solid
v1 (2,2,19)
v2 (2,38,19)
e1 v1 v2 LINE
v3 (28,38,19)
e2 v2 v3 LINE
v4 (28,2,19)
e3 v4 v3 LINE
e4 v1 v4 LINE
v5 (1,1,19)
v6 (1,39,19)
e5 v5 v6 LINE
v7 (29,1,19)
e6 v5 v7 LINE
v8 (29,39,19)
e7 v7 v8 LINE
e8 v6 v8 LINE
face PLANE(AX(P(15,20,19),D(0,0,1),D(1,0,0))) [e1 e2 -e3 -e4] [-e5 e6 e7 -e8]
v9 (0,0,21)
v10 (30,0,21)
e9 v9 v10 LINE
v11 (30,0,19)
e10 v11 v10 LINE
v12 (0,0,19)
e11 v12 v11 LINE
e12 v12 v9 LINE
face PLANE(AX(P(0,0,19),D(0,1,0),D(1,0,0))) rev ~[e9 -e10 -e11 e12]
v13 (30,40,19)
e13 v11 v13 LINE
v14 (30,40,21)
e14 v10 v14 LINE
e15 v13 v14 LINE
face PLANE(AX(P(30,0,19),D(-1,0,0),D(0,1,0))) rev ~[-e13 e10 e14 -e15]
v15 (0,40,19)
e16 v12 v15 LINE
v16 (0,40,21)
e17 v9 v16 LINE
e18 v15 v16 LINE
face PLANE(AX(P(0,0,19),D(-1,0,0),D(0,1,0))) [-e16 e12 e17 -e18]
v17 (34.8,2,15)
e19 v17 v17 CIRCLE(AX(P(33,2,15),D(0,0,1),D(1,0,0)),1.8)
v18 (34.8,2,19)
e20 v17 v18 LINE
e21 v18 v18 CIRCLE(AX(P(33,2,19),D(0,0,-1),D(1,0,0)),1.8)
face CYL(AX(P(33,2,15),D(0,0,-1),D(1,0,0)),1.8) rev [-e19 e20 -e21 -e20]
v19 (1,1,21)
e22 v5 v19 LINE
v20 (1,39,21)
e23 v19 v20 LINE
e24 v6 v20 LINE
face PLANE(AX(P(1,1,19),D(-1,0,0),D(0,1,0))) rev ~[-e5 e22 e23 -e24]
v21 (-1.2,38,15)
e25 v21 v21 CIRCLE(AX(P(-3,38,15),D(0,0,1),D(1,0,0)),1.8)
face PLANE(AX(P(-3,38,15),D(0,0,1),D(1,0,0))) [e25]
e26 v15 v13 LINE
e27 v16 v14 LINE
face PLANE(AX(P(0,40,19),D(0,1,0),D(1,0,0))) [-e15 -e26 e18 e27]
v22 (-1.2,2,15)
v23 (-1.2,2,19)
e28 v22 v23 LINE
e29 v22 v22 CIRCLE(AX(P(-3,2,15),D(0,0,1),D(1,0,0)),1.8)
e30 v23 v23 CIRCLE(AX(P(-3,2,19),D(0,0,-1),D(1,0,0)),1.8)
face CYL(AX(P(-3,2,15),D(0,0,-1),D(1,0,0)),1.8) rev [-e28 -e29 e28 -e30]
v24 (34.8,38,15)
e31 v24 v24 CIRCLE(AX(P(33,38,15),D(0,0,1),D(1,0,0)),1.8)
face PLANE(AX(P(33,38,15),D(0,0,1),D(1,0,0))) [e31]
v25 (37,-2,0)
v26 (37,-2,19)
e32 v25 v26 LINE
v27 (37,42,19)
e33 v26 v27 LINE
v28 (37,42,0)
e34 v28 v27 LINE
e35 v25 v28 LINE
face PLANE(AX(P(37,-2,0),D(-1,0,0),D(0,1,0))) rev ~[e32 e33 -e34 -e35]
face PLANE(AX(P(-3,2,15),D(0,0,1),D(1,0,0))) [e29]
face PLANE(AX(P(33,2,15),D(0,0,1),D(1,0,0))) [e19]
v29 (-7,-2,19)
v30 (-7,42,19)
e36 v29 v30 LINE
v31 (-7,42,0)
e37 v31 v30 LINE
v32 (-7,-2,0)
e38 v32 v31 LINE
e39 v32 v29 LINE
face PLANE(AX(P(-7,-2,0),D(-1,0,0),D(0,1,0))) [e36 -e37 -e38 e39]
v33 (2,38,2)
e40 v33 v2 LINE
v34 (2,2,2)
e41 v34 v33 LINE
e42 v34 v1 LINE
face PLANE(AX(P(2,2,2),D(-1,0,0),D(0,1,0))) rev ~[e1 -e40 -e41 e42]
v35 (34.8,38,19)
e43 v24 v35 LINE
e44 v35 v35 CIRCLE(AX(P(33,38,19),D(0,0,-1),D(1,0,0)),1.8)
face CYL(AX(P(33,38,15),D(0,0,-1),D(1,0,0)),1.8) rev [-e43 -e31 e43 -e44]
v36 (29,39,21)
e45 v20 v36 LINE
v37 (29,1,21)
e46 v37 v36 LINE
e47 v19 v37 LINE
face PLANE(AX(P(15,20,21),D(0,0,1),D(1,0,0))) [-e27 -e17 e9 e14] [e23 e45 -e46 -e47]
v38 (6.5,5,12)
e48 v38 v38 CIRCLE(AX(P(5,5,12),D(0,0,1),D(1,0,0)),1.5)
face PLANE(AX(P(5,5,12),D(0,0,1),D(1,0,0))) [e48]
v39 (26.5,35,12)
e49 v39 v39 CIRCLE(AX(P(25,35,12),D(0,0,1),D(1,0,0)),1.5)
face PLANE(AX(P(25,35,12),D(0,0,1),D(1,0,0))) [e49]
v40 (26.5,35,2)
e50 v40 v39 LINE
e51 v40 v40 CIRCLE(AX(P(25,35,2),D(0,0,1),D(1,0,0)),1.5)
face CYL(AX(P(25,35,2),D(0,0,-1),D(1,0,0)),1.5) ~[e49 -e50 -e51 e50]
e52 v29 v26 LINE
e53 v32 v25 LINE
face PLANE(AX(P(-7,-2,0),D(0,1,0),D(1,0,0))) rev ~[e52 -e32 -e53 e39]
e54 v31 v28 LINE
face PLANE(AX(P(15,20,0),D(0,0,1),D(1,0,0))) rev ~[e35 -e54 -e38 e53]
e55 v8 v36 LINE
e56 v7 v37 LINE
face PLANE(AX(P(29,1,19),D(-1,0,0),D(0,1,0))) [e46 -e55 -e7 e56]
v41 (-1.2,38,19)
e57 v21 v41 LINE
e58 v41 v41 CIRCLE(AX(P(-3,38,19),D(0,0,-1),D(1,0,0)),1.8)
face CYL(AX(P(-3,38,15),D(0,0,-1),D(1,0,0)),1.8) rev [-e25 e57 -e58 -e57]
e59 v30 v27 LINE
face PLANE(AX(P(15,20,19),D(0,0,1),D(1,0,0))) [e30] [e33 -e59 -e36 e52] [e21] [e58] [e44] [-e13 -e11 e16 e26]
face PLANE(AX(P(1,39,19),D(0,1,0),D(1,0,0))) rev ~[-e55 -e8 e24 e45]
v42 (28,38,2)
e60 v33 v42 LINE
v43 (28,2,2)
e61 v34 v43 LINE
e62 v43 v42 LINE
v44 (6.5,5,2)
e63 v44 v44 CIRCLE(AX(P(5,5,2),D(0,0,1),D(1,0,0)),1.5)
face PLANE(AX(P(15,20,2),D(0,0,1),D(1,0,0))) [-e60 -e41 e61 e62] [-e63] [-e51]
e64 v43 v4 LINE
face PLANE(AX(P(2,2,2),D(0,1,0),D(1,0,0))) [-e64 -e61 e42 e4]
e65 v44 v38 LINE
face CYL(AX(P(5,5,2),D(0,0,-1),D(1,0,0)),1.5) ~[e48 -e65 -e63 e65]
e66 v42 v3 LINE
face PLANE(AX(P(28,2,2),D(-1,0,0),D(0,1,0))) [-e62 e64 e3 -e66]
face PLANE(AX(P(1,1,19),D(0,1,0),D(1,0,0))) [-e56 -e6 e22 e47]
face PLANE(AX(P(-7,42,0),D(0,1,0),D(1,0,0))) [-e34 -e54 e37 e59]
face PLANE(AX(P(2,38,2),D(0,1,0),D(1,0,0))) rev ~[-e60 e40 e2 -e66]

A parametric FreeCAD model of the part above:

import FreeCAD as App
import Part
import Sketcher
from FreeCAD import Vector

doc = App.newDocument("Part")
body = doc.addObject("PartDesign::Body", "Body")

# Sketch on XY plane
sketch1 = body.newObject("Sketcher::SketchObject", "Sketch")
sketch1.AttachmentSupport = (doc.getObject("XY_Plane"), [""])
sketch1.MapMode = "FlatFace"
sketch1.AttachmentOffset = App.Placement(Vector(0, 0, 2), App.Rotation())
sketch1.addGeometry(Part.Circle(Vector(25, 35, 0), Vector(0, 0, 1), 1.5), False)
sketch1.addConstraint(Sketcher.Constraint("Diameter", 0, 3.0))
sketch1.addConstraint(Sketcher.Constraint("DistanceX", -1, 1, 0, 3, 25.0))
sketch1.addConstraint(Sketcher.Constraint("DistanceY", -1, 1, 0, 3, 35.0))
pad1 = body.newObject("PartDesign::Pad", "Pad")
pad1.Profile = sketch1
pad1.Length = 10
body2 = doc.addObject("PartDesign::Body", "Body001")

# Sketch on XY plane
sketch2 = body2.newObject("Sketcher::SketchObject", "Sketch001")
sketch2.AttachmentSupport = (doc.getObject("XY_Plane001"), [""])
sketch2.MapMode = "FlatFace"
sketch2.AttachmentOffset = App.Placement(Vector(0, 0, 2), App.Rotation())
sketch2.addGeometry(Part.Circle(Vector(5, 5, 0), Vector(0, 0, 1), 1.5), False)
sketch2.addConstraint(Sketcher.Constraint("Diameter", 0, 3.0))
sketch2.addConstraint(Sketcher.Constraint("DistanceX", -1, 1, 0, 3, 5.0))
sketch2.addConstraint(Sketcher.Constraint("DistanceY", -1, 1, 0, 3, 5.0))
pad2 = body2.newObject("PartDesign::Pad", "Pad001")
pad2.Profile = sketch2
pad2.Length = 10
body3 = doc.addObject("PartDesign::Body", "Body002")
body3.AllowCompound = True

# Sketch on XY plane
sketch3 = body3.newObject("Sketcher::SketchObject", "Sketch002")
sketch3.AttachmentSupport = (doc.getObject("XY_Plane002"), [""])
sketch3.MapMode = "FlatFace"
sketch3.AttachmentOffset = App.Placement(Vector(0, 0, 19), App.Rotation())
sketch3.addGeometry(Part.LineSegment(Vector(0, 40, 0), Vector(0, 0, 0)), False)
sketch3.addGeometry(Part.LineSegment(Vector(0, 0, 0), Vector(30, 0, 0)), False)
sketch3.addGeometry(Part.LineSegment(Vector(30, 0, 0), Vector(30, 40, 0)), False)
sketch3.addGeometry(Part.LineSegment(Vector(30, 40, 0), Vector(0, 40, 0)), False)
sketch3.addGeometry(Part.LineSegment(Vector(29, 1, 0), Vector(1, 1, 0)), False)
sketch3.addGeometry(Part.LineSegment(Vector(1, 1, 0), Vector(1, 39, 0)), False)
sketch3.addGeometry(Part.LineSegment(Vector(1, 39, 0), Vector(29, 39, 0)), False)
sketch3.addGeometry(Part.LineSegment(Vector(29, 39, 0), Vector(29, 1, 0)), False)
sketch3.addConstraint(Sketcher.Constraint("Coincident", 0, 2, 1, 1))
sketch3.addConstraint(Sketcher.Constraint("Coincident", 1, 2, 2, 1))
sketch3.addConstraint(Sketcher.Constraint("Coincident", 2, 2, 3, 1))
sketch3.addConstraint(Sketcher.Constraint("Coincident", 3, 2, 0, 1))
sketch3.addConstraint(Sketcher.Constraint("Coincident", 4, 2, 5, 1))
sketch3.addConstraint(Sketcher.Constraint("Coincident", 5, 2, 6, 1))
sketch3.addConstraint(Sketcher.Constraint("Coincident", 6, 2, 7, 1))
sketch3.addConstraint(Sketcher.Constraint("Coincident", 7, 2, 4, 1))
sketch3.addConstraint(Sketcher.Constraint("Vertical", 0))
sketch3.addConstraint(Sketcher.Constraint("Horizontal", 1))
sketch3.addConstraint(Sketcher.Constraint("Vertical", 2))
sketch3.addConstraint(Sketcher.Constraint("Horizontal", 3))
sketch3.addConstraint(Sketcher.Constraint("Horizontal", 4))
sketch3.addConstraint(Sketcher.Constraint("Vertical", 5))
sketch3.addConstraint(Sketcher.Constraint("Horizontal", 6))
sketch3.addConstraint(Sketcher.Constraint("Vertical", 7))
sketch3.addConstraint(Sketcher.Constraint("Coincident", 0, 2, -1, 1))
sketch3.addConstraint(Sketcher.Constraint("DistanceX", 1, 1, 1, 2, 30.0))
sketch3.addConstraint(Sketcher.Constraint("DistanceX", 4, 2, 4, 1, 28.0))
sketch3.addConstraint(Sketcher.Constraint("DistanceY", 0, 2, 0, 1, 40.0))
sketch3.addConstraint(Sketcher.Constraint("DistanceY", 5, 1, 5, 2, 38.0))
sketch3.addConstraint(Sketcher.Constraint("DistanceX", -1, 1, 4, 2, 1.0))
sketch3.addConstraint(Sketcher.Constraint("DistanceY", -1, 1, 4, 2, 1.0))
pad3 = body3.newObject("PartDesign::Pad", "Pad002")
pad3.Profile = sketch3
pad3.Length = 2
doc.recompute()

boolean = body3.newObject("PartDesign::Boolean", "Boolean")
boolean.Type = "Fuse"
boolean.addObjects([body])
doc.recompute()

boolean2 = body3.newObject("PartDesign::Boolean", "Boolean001")
boolean2.Type = "Fuse"
boolean2.addObjects([body2])
body4 = doc.addObject("PartDesign::Body", "Body003")

# Sketch on XY plane
sketch4 = body4.newObject("Sketcher::SketchObject", "Sketch003")
sketch4.AttachmentSupport = (doc.getObject("XY_Plane003"), [""])
sketch4.MapMode = "FlatFace"
sketch4.AttachmentOffset = App.Placement(Vector(0, 0, 15), App.Rotation())
sketch4.addGeometry(Part.Circle(Vector(-3, 38, 0), Vector(0, 0, 1), 1.8), False)
sketch4.addConstraint(Sketcher.Constraint("Diameter", 0, 3.6))
sketch4.addConstraint(Sketcher.Constraint("DistanceX", 0, 3, -1, 1, 3.0))
sketch4.addConstraint(Sketcher.Constraint("DistanceY", -1, 1, 0, 3, 38.0))
pad4 = body4.newObject("PartDesign::Pad", "Pad003")
pad4.Profile = sketch4
pad4.Length = 6
body5 = doc.addObject("PartDesign::Body", "Body004")

# Sketch on XY plane
sketch5 = body5.newObject("Sketcher::SketchObject", "Sketch004")
sketch5.AttachmentSupport = (doc.getObject("XY_Plane004"), [""])
sketch5.MapMode = "FlatFace"
sketch5.AttachmentOffset = App.Placement(Vector(0, 0, 15), App.Rotation())
sketch5.addGeometry(Part.Circle(Vector(33, 2, 0), Vector(0, 0, 1), 1.8), False)
sketch5.addConstraint(Sketcher.Constraint("Diameter", 0, 3.6))
sketch5.addConstraint(Sketcher.Constraint("DistanceX", -1, 1, 0, 3, 33.0))
sketch5.addConstraint(Sketcher.Constraint("DistanceY", -1, 1, 0, 3, 2.0))
pad5 = body5.newObject("PartDesign::Pad", "Pad004")
pad5.Profile = sketch5
pad5.Length = 6
body6 = doc.addObject("PartDesign::Body", "Body005")

# Sketch on XY plane
sketch6 = body6.newObject("Sketcher::SketchObject", "Sketch005")
sketch6.AttachmentSupport = (doc.getObject("XY_Plane005"), [""])
sketch6.MapMode = "FlatFace"
sketch6.AttachmentOffset = App.Placement(Vector(0, 0, 15), App.Rotation())
sketch6.addGeometry(Part.Circle(Vector(33, 38, 0), Vector(0, 0, 1), 1.8), False)
sketch6.addConstraint(Sketcher.Constraint("Diameter", 0, 3.6))
sketch6.addConstraint(Sketcher.Constraint("DistanceX", -1, 1, 0, 3, 33.0))
sketch6.addConstraint(Sketcher.Constraint("DistanceY", -1, 1, 0, 3, 38.0))
pad6 = body6.newObject("PartDesign::Pad", "Pad005")
pad6.Profile = sketch6
pad6.Length = 6
body7 = doc.addObject("PartDesign::Body", "Body006")
body7.AllowCompound = True

# Sketch on XY plane
sketch7 = body7.newObject("Sketcher::SketchObject", "Sketch006")
sketch7.AttachmentSupport = (doc.getObject("XY_Plane006"), [""])
sketch7.MapMode = "FlatFace"
sketch7.AttachmentOffset = App.Placement(Vector(0, 0, 15), App.Rotation())
sketch7.addGeometry(Part.Circle(Vector(-3, 2, 0), Vector(0, 0, 1), 1.8), False)
sketch7.addConstraint(Sketcher.Constraint("Diameter", 0, 3.6))
sketch7.addConstraint(Sketcher.Constraint("DistanceX", 0, 3, -1, 1, 3.0))
sketch7.addConstraint(Sketcher.Constraint("DistanceY", -1, 1, 0, 3, 2.0))
pad7 = body7.newObject("PartDesign::Pad", "Pad006")
pad7.Profile = sketch7
pad7.Length = 6
doc.recompute()

boolean3 = body7.newObject("PartDesign::Boolean", "Boolean002")
boolean3.Type = "Fuse"
boolean3.addObjects([body4])
doc.recompute()

boolean4 = body7.newObject("PartDesign::Boolean", "Boolean003")
boolean4.Type = "Fuse"
boolean4.addObjects([body5])
doc.recompute()

boolean5 = body7.newObject("PartDesign::Boolean", "Boolean004")
boolean5.Type = "Fuse"
boolean5.addObjects([body6])
body8 = doc.addObject("PartDesign::Body", "Body007")

# Sketch on XY plane
sketch8 = body8.newObject("Sketcher::SketchObject", "Sketch007")
sketch8.AttachmentSupport = (doc.getObject("XY_Plane007"), [""])
sketch8.MapMode = "FlatFace"
sketch8.AttachmentOffset = App.Placement(Vector(0, 0, 2), App.Rotation())
sketch8.addGeometry(Part.LineSegment(Vector(2, 38, 0), Vector(2, 2, 0)), False)
sketch8.addGeometry(Part.LineSegment(Vector(2, 2, 0), Vector(28, 2, 0)), False)
sketch8.addGeometry(Part.LineSegment(Vector(28, 2, 0), Vector(28, 38, 0)), False)
sketch8.addGeometry(Part.LineSegment(Vector(28, 38, 0), Vector(2, 38, 0)), False)
sketch8.addConstraint(Sketcher.Constraint("Coincident", 0, 2, 1, 1))
sketch8.addConstraint(Sketcher.Constraint("Coincident", 1, 2, 2, 1))
sketch8.addConstraint(Sketcher.Constraint("Coincident", 2, 2, 3, 1))
sketch8.addConstraint(Sketcher.Constraint("Coincident", 3, 2, 0, 1))
sketch8.addConstraint(Sketcher.Constraint("Vertical", 0))
sketch8.addConstraint(Sketcher.Constraint("Horizontal", 1))
sketch8.addConstraint(Sketcher.Constraint("Vertical", 2))
sketch8.addConstraint(Sketcher.Constraint("Horizontal", 3))
sketch8.addConstraint(Sketcher.Constraint("DistanceX", 1, 1, 1, 2, 26.0))
sketch8.addConstraint(Sketcher.Constraint("DistanceY", 0, 2, 0, 1, 36.0))
sketch8.addConstraint(Sketcher.Constraint("DistanceX", -1, 1, 0, 2, 2.0))
sketch8.addConstraint(Sketcher.Constraint("DistanceY", -1, 1, 0, 2, 2.0))
pad8 = body8.newObject("PartDesign::Pad", "Pad007")
pad8.Profile = sketch8
pad8.Length = 17
body9 = doc.addObject("PartDesign::Body", "Body008")

# Sketch on XY plane
sketch9 = body9.newObject("Sketcher::SketchObject", "Sketch008")
sketch9.AttachmentSupport = (doc.getObject("XY_Plane008"), [""])
sketch9.MapMode = "FlatFace"
sketch9.addGeometry(Part.LineSegment(Vector(-7, 42, 0), Vector(-7, -2, 0)), False)
sketch9.addGeometry(Part.LineSegment(Vector(-7, -2, 0), Vector(37, -2, 0)), False)
sketch9.addGeometry(Part.LineSegment(Vector(37, -2, 0), Vector(37, 42, 0)), False)
sketch9.addGeometry(Part.LineSegment(Vector(37, 42, 0), Vector(-7, 42, 0)), False)
sketch9.addConstraint(Sketcher.Constraint("Coincident", 0, 2, 1, 1))
sketch9.addConstraint(Sketcher.Constraint("Coincident", 1, 2, 2, 1))
sketch9.addConstraint(Sketcher.Constraint("Coincident", 2, 2, 3, 1))
sketch9.addConstraint(Sketcher.Constraint("Coincident", 3, 2, 0, 1))
sketch9.addConstraint(Sketcher.Constraint("Vertical", 0))
sketch9.addConstraint(Sketcher.Constraint("Horizontal", 1))
sketch9.addConstraint(Sketcher.Constraint("Vertical", 2))
sketch9.addConstraint(Sketcher.Constraint("Horizontal", 3))
sketch9.addConstraint(Sketcher.Constraint("Equal", 3, 0))
sketch9.addConstraint(Sketcher.Constraint("DistanceX", 1, 1, 1, 2, 44.0))
sketch9.addConstraint(Sketcher.Constraint("DistanceX", 0, 2, -1, 1, 7.0))
sketch9.addConstraint(Sketcher.Constraint("DistanceY", 0, 2, -1, 1, 2.0))
pad9 = body9.newObject("PartDesign::Pad", "Pad008")
pad9.Profile = sketch9
pad9.Length = 19
doc.recompute()

boolean6 = body9.newObject("PartDesign::Boolean", "Boolean005")
boolean6.Type = "Cut"
boolean6.addObjects([body8])
doc.recompute()

boolean7 = body9.newObject("PartDesign::Boolean", "Boolean006")
boolean7.Type = "Cut"
boolean7.addObjects([body7])
doc.recompute()

boolean8 = body9.newObject("PartDesign::Boolean", "Boolean007")
boolean8.Type = "Fuse"
boolean8.addObjects([body3])

doc.recompute()
